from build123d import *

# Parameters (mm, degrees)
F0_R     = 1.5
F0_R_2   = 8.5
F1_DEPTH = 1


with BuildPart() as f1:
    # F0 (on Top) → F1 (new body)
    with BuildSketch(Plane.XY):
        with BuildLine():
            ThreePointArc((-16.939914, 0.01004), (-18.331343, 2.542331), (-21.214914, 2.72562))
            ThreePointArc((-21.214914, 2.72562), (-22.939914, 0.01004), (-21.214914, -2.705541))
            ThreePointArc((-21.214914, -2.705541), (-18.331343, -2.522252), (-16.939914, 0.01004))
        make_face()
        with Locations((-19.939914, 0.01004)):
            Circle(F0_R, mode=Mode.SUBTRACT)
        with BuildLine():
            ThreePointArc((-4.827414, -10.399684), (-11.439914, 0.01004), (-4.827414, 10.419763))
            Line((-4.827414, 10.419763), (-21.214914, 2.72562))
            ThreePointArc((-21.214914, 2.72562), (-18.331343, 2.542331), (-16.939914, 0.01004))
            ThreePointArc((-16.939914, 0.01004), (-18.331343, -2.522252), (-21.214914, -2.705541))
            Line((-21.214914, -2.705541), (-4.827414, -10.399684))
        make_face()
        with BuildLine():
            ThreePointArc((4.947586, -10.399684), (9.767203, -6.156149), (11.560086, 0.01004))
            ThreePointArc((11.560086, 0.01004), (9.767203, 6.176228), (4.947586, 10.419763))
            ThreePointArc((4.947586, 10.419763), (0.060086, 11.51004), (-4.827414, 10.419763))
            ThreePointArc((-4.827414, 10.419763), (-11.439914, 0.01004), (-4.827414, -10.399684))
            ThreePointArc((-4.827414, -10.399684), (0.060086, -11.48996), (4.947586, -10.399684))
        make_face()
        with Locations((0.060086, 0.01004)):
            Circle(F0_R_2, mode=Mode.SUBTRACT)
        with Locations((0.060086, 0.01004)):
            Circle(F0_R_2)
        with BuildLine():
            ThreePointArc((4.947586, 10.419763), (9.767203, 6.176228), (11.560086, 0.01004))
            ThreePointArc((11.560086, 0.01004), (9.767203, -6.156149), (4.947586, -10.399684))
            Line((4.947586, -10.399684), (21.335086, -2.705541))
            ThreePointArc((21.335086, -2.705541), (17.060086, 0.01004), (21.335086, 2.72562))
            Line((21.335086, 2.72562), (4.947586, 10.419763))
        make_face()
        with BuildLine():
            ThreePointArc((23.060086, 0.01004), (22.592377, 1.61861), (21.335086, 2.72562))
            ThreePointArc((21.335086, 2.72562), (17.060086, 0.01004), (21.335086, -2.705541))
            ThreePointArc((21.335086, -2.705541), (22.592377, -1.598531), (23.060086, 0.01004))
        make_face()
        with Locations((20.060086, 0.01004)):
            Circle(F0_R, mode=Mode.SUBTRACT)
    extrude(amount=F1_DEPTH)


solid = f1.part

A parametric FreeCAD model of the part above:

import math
import FreeCAD as App
import Part
import Sketcher

V = App.Vector
Q = App.Units.Quantity

doc = App.newDocument("Part")
body = doc.addObject("PartDesign::Body", "Body")

sketch1 = body.newObject("Sketcher::SketchObject", "Sketch")
sketch1.AttachmentSupport = (doc.getObject("XY_Plane"), [""])
sketch1.MapMode = "FlatFace"
sketch1.addGeometry(Part.ArcOfCircle(Part.Circle(V(-19.9, 0, 0), V(0, 0, 1), 3), math.radians(115), math.radians(245)), False)
sketch1.addGeometry(Part.LineSegment(V(-21.2, -2.7, 0), V(-4.8, -10.4, 0)), False)
sketch1.addGeometry(Part.ArcOfCircle(Part.Circle(V(0.1, 0, 0), V(0, 0, 1), 11.5), math.radians(-115), math.radians(-65)), False)
sketch1.addGeometry(Part.LineSegment(V(4.9, -10.4, 0), V(21.3, -2.7, 0)), False)
sketch1.addGeometry(Part.ArcOfCircle(Part.Circle(V(20.1, 0, 0), V(0, 0, 1), 3), math.radians(-65), math.radians(0)), False)
sketch1.addGeometry(Part.ArcOfCircle(Part.Circle(V(20.1, 0, 0), V(0, 0, 1), 3), math.radians(0), math.radians(65)), False)
sketch1.addGeometry(Part.LineSegment(V(21.3, 2.7, 0), V(4.9, 10.4, 0)), False)
sketch1.addGeometry(Part.ArcOfCircle(Part.Circle(V(0.1, 0, 0), V(0, 0, 1), 11.5), math.radians(65), math.radians(115)), False)
sketch1.addGeometry(Part.LineSegment(V(-4.8, 10.4, 0), V(-21.2, 2.7, 0)), False)
sketch1.addGeometry(Part.Circle(V(-19.9, 0, 0), V(0, 0, 1), 1.5), False)
sketch1.addGeometry(Part.Circle(V(20.1, 0, 0), V(0, 0, 1), 1.5), False)
sketch1.addConstraint(Sketcher.Constraint("Tangent", 0, 2, 1, 1))
sketch1.addConstraint(Sketcher.Constraint("Tangent", 1, 2, 2, 1))
sketch1.addConstraint(Sketcher.Constraint("Tangent", 2, 2, 3, 1))
sketch1.addConstraint(Sketcher.Constraint("Tangent", 3, 2, 4, 1))
sketch1.addConstraint(Sketcher.Constraint("Tangent", 4, 2, 5, 1))
sketch1.addConstraint(Sketcher.Constraint("Tangent", 5, 2, 6, 1))
sketch1.addConstraint(Sketcher.Constraint("Tangent", 6, 2, 7, 1))
sketch1.addConstraint(Sketcher.Constraint("Tangent", 7, 2, 8, 1))
sketch1.addConstraint(Sketcher.Constraint("Tangent", 8, 2, 0, 1))
sketch1.addConstraint(Sketcher.Constraint("Coincident", 7, 3, 2, 3))
sketch1.addConstraint(Sketcher.Constraint("Coincident", 9, 3, 0, 3))
sketch1.addConstraint(Sketcher.Constraint("Coincident", 10, 3, 4, 3))
sketch1.addConstraint(Sketcher.Constraint("Equal", 4, 5))
sketch1.addConstraint(Sketcher.Constraint("Equal", 9, 10))
sketch1.addConstraint(Sketcher.Constraint("Parallel", 1, 6))
sketch1.addConstraint(Sketcher.Constraint("Parallel", 3, 8))
sketch1.addConstraint(Sketcher.Constraint("Horizontal", 4, 3, 9, 3))
sketch1.addConstraint(Sketcher.Constraint("Horizontal", 0, 2, 3, 2))
sketch1.addConstraint(Sketcher.Constraint("Horizontal", 10, 3, 4, 2))
sketch1.addConstraint(Sketcher.Constraint("Vertical", 2, 2, 6, 2))
sketch1.addConstraint(Sketcher.Constraint("Diameter", 9, Q("3 mm")))
sketch1.addConstraint(Sketcher.Constraint("Radius", 0, Q("3.000001 mm")))
sketch1.addConstraint(Sketcher.Constraint("DistanceX", 0, 3, 2, 3, Q("19.999999 mm")))
sketch1.addConstraint(Sketcher.Constraint("Radius", 2, Q("11.500005 mm")))
sketch1.addConstraint(Sketcher.Constraint("DistanceY", -1, 1, 0, 3, Q("0.010039 mm")))
sketch1.addConstraint(Sketcher.Constraint("DistanceX", -1, 1, 4, 3, Q("20.060082 mm")))
pad1 = body.newObject("PartDesign::Pad", "Pad")
pad1.Profile = sketch1
pad1.Length = 1

doc.recompute()
